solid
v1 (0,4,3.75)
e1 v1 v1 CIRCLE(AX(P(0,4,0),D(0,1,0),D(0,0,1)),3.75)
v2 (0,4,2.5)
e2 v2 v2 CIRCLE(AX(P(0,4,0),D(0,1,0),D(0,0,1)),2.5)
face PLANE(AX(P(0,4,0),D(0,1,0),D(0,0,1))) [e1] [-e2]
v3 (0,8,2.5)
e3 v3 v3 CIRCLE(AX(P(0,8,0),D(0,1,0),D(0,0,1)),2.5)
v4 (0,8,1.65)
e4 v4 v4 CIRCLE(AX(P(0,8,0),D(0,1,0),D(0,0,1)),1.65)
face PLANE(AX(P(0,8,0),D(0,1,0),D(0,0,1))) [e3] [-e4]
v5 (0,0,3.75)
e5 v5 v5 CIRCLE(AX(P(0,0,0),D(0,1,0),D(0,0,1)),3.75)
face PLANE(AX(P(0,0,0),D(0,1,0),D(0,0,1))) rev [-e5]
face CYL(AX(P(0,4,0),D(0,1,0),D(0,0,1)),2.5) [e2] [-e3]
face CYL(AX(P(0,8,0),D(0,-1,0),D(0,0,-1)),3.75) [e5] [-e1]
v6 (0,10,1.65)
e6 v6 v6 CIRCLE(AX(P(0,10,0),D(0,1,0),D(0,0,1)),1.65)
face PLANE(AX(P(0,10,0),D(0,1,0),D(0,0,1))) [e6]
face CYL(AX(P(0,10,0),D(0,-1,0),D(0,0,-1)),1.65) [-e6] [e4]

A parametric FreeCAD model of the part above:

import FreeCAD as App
import Part
import Sketcher
from FreeCAD import Vector
Q = App.Units.Quantity

doc = App.newDocument("Part")
params = doc.addObject("Spreadsheet::Sheet", "Params")
for row, (alias, value) in enumerate([
    ("sketch1_diameter", "7.5 mm"),
    ("pad1_length", "8 mm"),
    ("sketch2_diameter", "5 mm"),
    ("sketch2_diameter2", "7.5 mm"),
    ("pocket1_length", "4 mm"),
    ("sketch3_diameter", "3.3 mm"),
    ("pad2_length", "2 mm"),
], start=1):
    params.set(f"A{row}", alias)
    params.set(f"B{row}", "=" + value)
    params.setAlias(f"B{row}", alias)

body = doc.addObject("PartDesign::Body", "Body")

# Sketch on XZ plane
sketch1 = doc.addObject("Sketcher::SketchObject", "Sketch")
body.addObject(sketch1)
sketch1.AttachmentSupport = (doc.XZ_Plane, [""])
sketch1.MapMode = "FlatFace"
sketch1.addGeometry(Part.Circle(Vector(0, 0, 0), Vector(0, 0, 1), 3.8), False)
sketch1.addConstraint([
    Sketcher.Constraint("Coincident", 0, 3, -1, 1),
    Sketcher.Constraint("Diameter", 0, Q("7.5 mm")),
])
sketch1.setExpression("Constraints[1]", "Params.sketch1_diameter")
pad1 = doc.addObject("PartDesign::Pad", "Pad")
body.addObject(pad1)
pad1.Profile = sketch1
pad1.setExpression("Length", "Params.pad1_length")
pad1.Reversed = True

# Sketch on XZ plane
sketch2 = doc.addObject("Sketcher::SketchObject", "Sketch001")
body.addObject(sketch2)
sketch2.AttachmentSupport = (doc.XZ_Plane, [""])
sketch2.MapMode = "FlatFace"
sketch2.AttachmentOffset = App.Placement(Vector(0, 0, -8), App.Rotation())
sketch2.addGeometry([
    Part.Circle(Vector(0, 0, 0), Vector(0, 0, 1), 3.8),
    Part.Circle(Vector(0, 0, 0), Vector(0, 0, 1), 2.5),
], False)
sketch2.addConstraint([
    Sketcher.Constraint("Coincident", 0, 3, -1, 1),
    Sketcher.Constraint("Coincident", 1, 3, -1, 1),
    Sketcher.Constraint("Diameter", 1, Q("5 mm")),
    Sketcher.Constraint("Diameter", 0, Q("7.5 mm")),
])
sketch2.setExpression("Constraints[2]", "Params.sketch2_diameter")
sketch2.setExpression("Constraints[3]", "Params.sketch2_diameter2")
pocket1 = doc.addObject("PartDesign::Pocket", "Pocket")
body.addObject(pocket1)
pocket1.Profile = sketch2
pocket1.setExpression("Length", "Params.pocket1_length")
pocket1.Reversed = True

# Sketch on XZ plane
sketch3 = doc.addObject("Sketcher::SketchObject", "Sketch002")
body.addObject(sketch3)
sketch3.AttachmentSupport = (doc.XZ_Plane, [""])
sketch3.MapMode = "FlatFace"
sketch3.AttachmentOffset = App.Placement(Vector(0, 0, -8), App.Rotation())
sketch3.addGeometry(Part.Circle(Vector(0, 0, 0), Vector(0, 0, 1), 1.6), False)
sketch3.addConstraint([
    Sketcher.Constraint("Coincident", 0, 3, -1, 1),
    Sketcher.Constraint("Diameter", 0, Q("3.3 mm")),
])
sketch3.setExpression("Constraints[1]", "Params.sketch3_diameter")
pad2 = doc.addObject("PartDesign::Pad", "Pad001")
body.addObject(pad2)
pad2.Profile = sketch3
pad2.setExpression("Length", "Params.pad2_length")
pad2.Reversed = True

doc.recompute()
